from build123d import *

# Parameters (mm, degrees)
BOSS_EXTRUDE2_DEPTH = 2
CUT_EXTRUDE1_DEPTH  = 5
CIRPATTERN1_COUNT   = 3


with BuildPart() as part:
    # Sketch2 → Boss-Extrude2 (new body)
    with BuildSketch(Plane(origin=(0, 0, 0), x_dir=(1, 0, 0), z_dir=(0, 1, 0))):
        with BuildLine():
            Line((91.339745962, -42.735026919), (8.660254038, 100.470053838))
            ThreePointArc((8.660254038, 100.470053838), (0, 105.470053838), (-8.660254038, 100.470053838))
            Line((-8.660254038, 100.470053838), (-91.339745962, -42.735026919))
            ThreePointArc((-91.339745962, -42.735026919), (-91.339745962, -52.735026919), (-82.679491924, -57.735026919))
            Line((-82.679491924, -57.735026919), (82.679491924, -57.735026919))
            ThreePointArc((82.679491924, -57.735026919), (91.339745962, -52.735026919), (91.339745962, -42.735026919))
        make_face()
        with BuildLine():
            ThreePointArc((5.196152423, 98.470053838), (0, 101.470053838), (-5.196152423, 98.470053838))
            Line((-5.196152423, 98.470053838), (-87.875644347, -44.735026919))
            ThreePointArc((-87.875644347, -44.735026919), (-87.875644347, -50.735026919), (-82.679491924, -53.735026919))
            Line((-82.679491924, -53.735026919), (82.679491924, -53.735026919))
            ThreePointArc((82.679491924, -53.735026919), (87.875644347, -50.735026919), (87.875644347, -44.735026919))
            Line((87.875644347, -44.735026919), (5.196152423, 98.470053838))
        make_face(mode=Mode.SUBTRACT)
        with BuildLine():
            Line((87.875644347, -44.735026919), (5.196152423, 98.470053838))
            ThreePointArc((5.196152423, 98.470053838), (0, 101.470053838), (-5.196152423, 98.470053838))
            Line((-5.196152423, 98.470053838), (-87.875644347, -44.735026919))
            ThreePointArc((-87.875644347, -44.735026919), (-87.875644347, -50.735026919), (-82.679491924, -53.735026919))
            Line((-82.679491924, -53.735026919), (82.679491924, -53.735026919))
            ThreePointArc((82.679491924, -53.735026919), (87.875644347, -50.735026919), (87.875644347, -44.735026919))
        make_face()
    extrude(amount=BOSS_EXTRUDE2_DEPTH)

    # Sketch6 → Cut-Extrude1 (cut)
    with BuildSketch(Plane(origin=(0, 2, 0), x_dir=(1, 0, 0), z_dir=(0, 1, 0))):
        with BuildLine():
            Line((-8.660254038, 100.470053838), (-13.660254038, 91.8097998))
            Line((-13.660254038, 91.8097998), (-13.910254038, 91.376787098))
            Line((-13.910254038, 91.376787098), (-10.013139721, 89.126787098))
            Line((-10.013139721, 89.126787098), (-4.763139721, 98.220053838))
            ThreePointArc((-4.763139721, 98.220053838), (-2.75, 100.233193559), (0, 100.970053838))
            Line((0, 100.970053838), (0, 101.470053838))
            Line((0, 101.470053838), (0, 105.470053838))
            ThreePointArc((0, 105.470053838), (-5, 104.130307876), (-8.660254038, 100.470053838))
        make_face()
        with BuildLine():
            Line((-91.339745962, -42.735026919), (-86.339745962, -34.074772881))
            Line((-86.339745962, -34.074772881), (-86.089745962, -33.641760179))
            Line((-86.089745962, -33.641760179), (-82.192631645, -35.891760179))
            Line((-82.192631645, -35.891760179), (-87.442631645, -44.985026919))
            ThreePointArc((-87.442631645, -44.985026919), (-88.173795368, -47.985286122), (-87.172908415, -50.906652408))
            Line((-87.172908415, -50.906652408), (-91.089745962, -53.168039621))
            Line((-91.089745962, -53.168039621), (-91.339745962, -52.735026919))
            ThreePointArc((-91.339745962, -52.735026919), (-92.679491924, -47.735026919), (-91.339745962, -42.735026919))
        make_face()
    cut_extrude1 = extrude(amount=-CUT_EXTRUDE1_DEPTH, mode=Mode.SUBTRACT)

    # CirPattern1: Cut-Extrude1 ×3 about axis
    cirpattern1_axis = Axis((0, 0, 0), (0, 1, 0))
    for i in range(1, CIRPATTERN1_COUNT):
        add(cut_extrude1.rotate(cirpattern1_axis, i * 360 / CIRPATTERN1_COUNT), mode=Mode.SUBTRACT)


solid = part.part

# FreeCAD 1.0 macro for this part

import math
import FreeCAD as App
import Part
import Sketcher

V = App.Vector
Q = App.Units.Quantity

doc = App.newDocument("Part")
params = doc.addObject("Spreadsheet::Sheet", "Params")
for row, (alias, value) in enumerate([
    ("sketch1_radius", "10 mm"),
    ("pad1_length", "2 mm"),
    ("sketch2_radius", "10 mm"),
    ("sketch2_radius2", "5.5 mm"),
    ("sketch2_length", "10 mm"),
    ("sketch2_length2", "0.5 mm"),
    ("pocket1_length", "5 mm"),
], start=1):
    params.set(f"A{row}", alias)
    params.set(f"B{row}", "=" + value)
    params.setAlias(f"B{row}", alias)

body = doc.addObject("PartDesign::Body", "Body")

sketch1 = body.newObject("Sketcher::SketchObject", "Sketch")
sketch1.AttachmentSupport = (doc.getObject("XZ_Plane"), [""])
sketch1.MapMode = "FlatFace"
sketch1.addGeometry([
    Part.LineSegment(V(91, 43, 0), V(9, -100, 0)),
    Part.ArcOfCircle(Part.Circle(V(0, -95, 0), V(0, 0, 1), 10), math.radians(-150), math.radians(-30)),
    Part.LineSegment(V(-9, -100, 0), V(-91, 43, 0)),
    Part.ArcOfCircle(Part.Circle(V(-83, 48, 0), V(0, 0, 1), 10), math.radians(90), math.radians(210)),
    Part.LineSegment(V(-83, 58, 0), V(83, 58, 0)),
    Part.ArcOfCircle(Part.Circle(V(83, 48, 0), V(0, 0, 1), 10), math.radians(-30), math.radians(90)),
], False)
sketch1.addConstraint([
    Sketcher.Constraint("Tangent", 0, 2, 1, 2),
    Sketcher.Constraint("Tangent", 1, 1, 2, 1),
    Sketcher.Constraint("Tangent", 2, 2, 3, 2),
    Sketcher.Constraint("Tangent", 3, 1, 4, 1),
    Sketcher.Constraint("Tangent", 4, 2, 5, 2),
    Sketcher.Constraint("Tangent", 5, 1, 0, 1),
    Sketcher.Constraint("Horizontal", 4),
    Sketcher.Constraint("Equal", 1, 3),
    Sketcher.Constraint("Equal", 3, 5),
    Sketcher.Constraint("Symmetric", 0, 2, 1, 1, -2),
    Sketcher.Constraint("Radius", 1, Q("10 mm")),
    Sketcher.Constraint("Angle", 0, Q("-120 deg")),
    Sketcher.Constraint("DistanceX", 2, 2, 0, 2, Q("100 mm")),
    Sketcher.Constraint("DistanceY", 1, 3, -1, 1, Q("95.470054 mm")),
])
sketch1.setExpression("Constraints[10]", "Params.sketch1_radius")
pad1 = body.newObject("PartDesign::Pad", "Pad")
pad1.Profile = sketch1
pad1.setExpression("Length", "Params.pad1_length")
pad1.Reversed = True

sketch2 = body.newObject("Sketcher::SketchObject", "Sketch001")
sketch2.AttachmentSupport = (doc.getObject("XZ_Plane"), [""])
sketch2.MapMode = "FlatFace"
sketch2.AttachmentOffset = App.Placement(V(0, 0, -2), App.Rotation())
sketch2.addGeometry([
    Part.LineSegment(V(-8.7, -100.5, 0), V(-13.7, -91.8, 0)),
    Part.LineSegment(V(-13.7, -91.8, 0), V(-13.9, -91.4, 0)),
    Part.LineSegment(V(-13.9, -91.4, 0), V(-10, -89.1, 0)),
    Part.LineSegment(V(-10, -89.1, 0), V(-4.8, -98.2, 0)),
    Part.ArcOfCircle(Part.Circle(V(0, -95.5, 0), V(0, 0, 1), 5.5), math.radians(-150), math.radians(-90)),
    Part.LineSegment(V(0, -101, 0), V(0, -105.5, 0)),
    Part.ArcOfCircle(Part.Circle(V(0, -95.5, 0), V(0, 0, 1), 10), math.radians(-150), math.radians(-90)),
    Part.LineSegment(V(-86.3, 34.1, 0), V(-91.3, 42.7, 0)),
    Part.ArcOfCircle(Part.Circle(V(-82.7, 47.7, 0), V(0, 0, 1), 10), math.radians(150), math.radians(210)),
    Part.LineSegment(V(-91.3, 52.7, 0), V(-91.1, 53.2, 0)),
    Part.LineSegment(V(-91.1, 53.2, 0), V(-87.2, 50.9, 0)),
    Part.ArcOfCircle(Part.Circle(V(-82.7, 47.7, 0), V(0, 0, 1), 5.5), math.radians(145), math.radians(210)),
    Part.LineSegment(V(-87.4, 45, 0), V(-82.2, 35.9, 0)),
    Part.LineSegment(V(-82.2, 35.9, 0), V(-86.1, 33.6, 0)),
    Part.LineSegment(V(-86.1, 33.6, 0), V(-86.3, 34.1, 0)),
], False)
sketch2.addConstraint([
    Sketcher.Constraint("Coincident", 0, 2, 1, 1),
    Sketcher.Constraint("Coincident", 1, 2, 2, 1),
    Sketcher.Constraint("Coincident", 2, 2, 3, 1),
    Sketcher.Constraint("Tangent", 3, 2, 4, 1),
    Sketcher.Constraint("Coincident", 4, 2, 5, 1),
    Sketcher.Constraint("Coincident", 5, 2, 6, 2),
    Sketcher.Constraint("Tangent", 6, 1, 0, 1),
    Sketcher.Constraint("Tangent", 7, 2, 8, 2),
    Sketcher.Constraint("Tangent", 8, 1, 9, 1),
    Sketcher.Constraint("Coincident", 9, 2, 10, 1),
    Sketcher.Constraint("Coincident", 10, 2, 11, 1),
    Sketcher.Constraint("Tangent", 11, 2, 12, 1),
    Sketcher.Constraint("Coincident", 12, 2, 13, 1),
    Sketcher.Constraint("Coincident", 13, 2, 14, 1),
    Sketcher.Constraint("Coincident", 14, 2, 7, 1),
    Sketcher.Constraint("Vertical", 5),
    Sketcher.Constraint("Coincident", 6, 3, 4, 3),
    Sketcher.Constraint("Coincident", 11, 3, 8, 3),
    Sketcher.Constraint("Equal", 6, 8),
    Sketcher.Constraint("Equal", 4, 11),
    Sketcher.Constraint("PointOnObject", 4, 3, -2),
    Sketcher.Constraint("PointOnObject", 4, 2, -2),
    Sketcher.Constraint("Parallel", 0, 1),
    Sketcher.Constraint("Perpendicular", 1, 2),
    Sketcher.Constraint("Perpendicular", 2, 3),
    Sketcher.Constraint("Parallel", 3, 7),
    Sketcher.Constraint("Perpendicular", 9, 10),
    Sketcher.Constraint("Parallel", 7, 12),
    Sketcher.Constraint("Perpendicular", 12, 13),
    Sketcher.Constraint("Perpendicular", 13, 14),
    Sketcher.Constraint("Vertical", 7, 2, 8, 1),
    Sketcher.Constraint("Equal", 0, 7),
    Sketcher.Constraint("Equal", 1, 9),
    Sketcher.Constraint("Equal", 3, 12),
    Sketcher.Constraint("Radius", 6, Q("10 mm")),
    Sketcher.Constraint("Radius", 4, Q("5.5 mm")),
    Sketcher.Constraint("Angle", 0, Q("120 deg")),
    Sketcher.Constraint("Distance", 0, Q("10 mm")),
    Sketcher.Constraint("Distance", 1, Q("0.5 mm")),
    Sketcher.Constraint("DistanceY", 0, 2, -1, 1, Q("91.8098 mm")),
    Sketcher.Constraint("DistanceX", 8, 3, -1, 1, Q("82.679492 mm")),
    Sketcher.Constraint("DistanceY", -1, 1, 9, 2, Q("53.16804 mm")),
])
sketch2.setExpression("Constraints[34]", "Params.sketch2_radius")
sketch2.setExpression("Constraints[35]", "Params.sketch2_radius2")
sketch2.setExpression("Constraints[37]", "Params.sketch2_length")
sketch2.setExpression("Constraints[38]", "Params.sketch2_length2")
pocket1 = body.newObject("PartDesign::Pocket", "Pocket")
pocket1.Profile = sketch2
pocket1.setExpression("Length", "Params.pocket1_length")
pocket1.Reversed = True
doc.recompute()

polarpattern = body.newObject("PartDesign::PolarPattern", "PolarPattern")
polarpattern.Originals = [pocket1]
polarpattern.Axis = (doc.getObject("Y_Axis"), [""])
polarpattern.Angle = 360
polarpattern.Occurrences = 3
body.Tip = polarpattern

doc.recompute()
